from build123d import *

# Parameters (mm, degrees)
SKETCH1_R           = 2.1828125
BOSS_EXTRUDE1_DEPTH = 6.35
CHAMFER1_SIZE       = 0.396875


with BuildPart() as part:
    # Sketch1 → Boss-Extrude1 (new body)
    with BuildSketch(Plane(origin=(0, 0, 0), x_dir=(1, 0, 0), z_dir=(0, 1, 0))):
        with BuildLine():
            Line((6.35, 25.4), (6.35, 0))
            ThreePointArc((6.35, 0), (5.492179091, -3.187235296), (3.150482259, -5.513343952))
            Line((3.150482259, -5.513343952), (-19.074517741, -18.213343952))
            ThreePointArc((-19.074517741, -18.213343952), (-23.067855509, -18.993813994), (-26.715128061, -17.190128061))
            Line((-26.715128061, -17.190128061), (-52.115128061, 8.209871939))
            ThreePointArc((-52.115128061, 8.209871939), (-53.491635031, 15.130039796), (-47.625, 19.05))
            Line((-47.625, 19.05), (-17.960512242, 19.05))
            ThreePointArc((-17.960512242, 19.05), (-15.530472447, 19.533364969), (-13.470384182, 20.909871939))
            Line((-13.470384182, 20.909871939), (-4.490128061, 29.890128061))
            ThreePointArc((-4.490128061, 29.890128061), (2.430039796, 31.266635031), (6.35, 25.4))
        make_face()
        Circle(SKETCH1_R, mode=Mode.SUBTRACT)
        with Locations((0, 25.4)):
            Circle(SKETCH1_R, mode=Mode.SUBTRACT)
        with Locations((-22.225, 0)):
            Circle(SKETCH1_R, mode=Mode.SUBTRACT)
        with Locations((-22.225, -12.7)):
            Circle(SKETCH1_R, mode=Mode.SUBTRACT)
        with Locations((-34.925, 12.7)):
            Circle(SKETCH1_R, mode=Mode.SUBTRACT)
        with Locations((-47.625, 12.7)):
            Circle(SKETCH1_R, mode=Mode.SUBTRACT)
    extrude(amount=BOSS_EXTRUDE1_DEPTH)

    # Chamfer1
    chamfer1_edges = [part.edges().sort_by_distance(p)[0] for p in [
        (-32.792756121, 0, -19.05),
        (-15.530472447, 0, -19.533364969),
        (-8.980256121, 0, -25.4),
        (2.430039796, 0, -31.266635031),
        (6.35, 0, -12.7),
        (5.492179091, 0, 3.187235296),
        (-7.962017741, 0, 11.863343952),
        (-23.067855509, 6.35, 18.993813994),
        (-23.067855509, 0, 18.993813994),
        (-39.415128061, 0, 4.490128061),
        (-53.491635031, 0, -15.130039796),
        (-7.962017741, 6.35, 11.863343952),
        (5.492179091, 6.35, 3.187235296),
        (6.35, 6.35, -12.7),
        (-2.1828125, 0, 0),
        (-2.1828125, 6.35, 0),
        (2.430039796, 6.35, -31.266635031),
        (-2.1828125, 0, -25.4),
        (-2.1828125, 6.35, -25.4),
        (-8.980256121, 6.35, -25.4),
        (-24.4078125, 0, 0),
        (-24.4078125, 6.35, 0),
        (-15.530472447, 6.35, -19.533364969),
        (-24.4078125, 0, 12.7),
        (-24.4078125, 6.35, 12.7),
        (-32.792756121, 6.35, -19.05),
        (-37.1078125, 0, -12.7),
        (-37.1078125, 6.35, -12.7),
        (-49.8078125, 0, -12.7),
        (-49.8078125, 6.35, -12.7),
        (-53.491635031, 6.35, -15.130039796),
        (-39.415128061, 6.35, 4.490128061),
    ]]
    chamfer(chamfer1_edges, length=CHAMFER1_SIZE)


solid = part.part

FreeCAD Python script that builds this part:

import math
import FreeCAD as App
import Part
import Sketcher

V = App.Vector
Q = App.Units.Quantity


def edges_at(feature, points):
    """Names of the edges that pass closest to the given points."""
    edges = feature.Shape.Edges
    near = lambda p: min(range(len(edges)), key=lambda i: edges[i].distToShape(Part.Vertex(*p))[0])
    return sorted({f"Edge{near(p) + 1}" for p in points})

doc = App.newDocument("Part")
body = doc.addObject("PartDesign::Body", "Body")

sketch1 = doc.addObject("Sketcher::SketchObject", "Sketch")
body.addObject(sketch1)
sketch1.AttachmentSupport = (doc.XZ_Plane, [""])
sketch1.MapMode = "FlatFace"
sketch1.addGeometry([
    Part.LineSegment(V(6.3, 0, 0), V(6.3, -25.4, 0)),
    Part.ArcOfCircle(Part.Circle(V(0, -25.4, 0), V(0, 0, 1), 6.4), math.radians(-135), math.radians(0)),
    Part.LineSegment(V(-4.5, -29.9, 0), V(-13.5, -20.9, 0)),
    Part.ArcOfCircle(Part.Circle(V(-18, -25.4, 0), V(0, 0, 1), 6.4), math.radians(45), math.radians(90)),
    Part.LineSegment(V(-18, -19.1, 0), V(-47.6, -19.1, 0)),
    Part.ArcOfCircle(Part.Circle(V(-47.6, -12.7, 0), V(0, 0, 1), 6.4), math.radians(135), math.radians(270)),
    Part.LineSegment(V(-52.1, -8.2, 0), V(-26.7, 17.2, 0)),
    Part.ArcOfCircle(Part.Circle(V(-22.2, 12.7, 0), V(0, 0, 1), 6.4), math.radians(60), math.radians(135)),
    Part.LineSegment(V(-19.1, 18.2, 0), V(3.2, 5.5, 0)),
    Part.ArcOfCircle(Part.Circle(V(0, 0, 0), V(0, 0, 1), 6.3), math.radians(0), math.radians(60)),
    Part.Circle(V(-22.2, 12.7, 0), V(0, 0, 1), 2.2),
    Part.Circle(V(0, 0, 0), V(0, 0, 1), 2.2),
    Part.Circle(V(-22.2, 0, 0), V(0, 0, 1), 2.2),
    Part.Circle(V(0, -25.4, 0), V(0, 0, 1), 2.2),
    Part.Circle(V(-34.9, -12.7, 0), V(0, 0, 1), 2.2),
    Part.Circle(V(-47.6, -12.7, 0), V(0, 0, 1), 2.2),
], False)
sketch1.addConstraint([
    Sketcher.Constraint("Tangent", 0, 2, 1, 2),
    Sketcher.Constraint("Tangent", 1, 1, 2, 1),
    Sketcher.Constraint("Tangent", 2, 2, 3, 1),
    Sketcher.Constraint("Tangent", 3, 2, 4, 1),
    Sketcher.Constraint("Tangent", 4, 2, 5, 2),
    Sketcher.Constraint("Tangent", 5, 1, 6, 1),
    Sketcher.Constraint("Tangent", 6, 2, 7, 2),
    Sketcher.Constraint("Tangent", 7, 1, 8, 1),
    Sketcher.Constraint("Tangent", 8, 2, 9, 2),
    Sketcher.Constraint("Tangent", 9, 1, 0, 1),
    Sketcher.Constraint("Vertical", 0),
    Sketcher.Constraint("Horizontal", 4),
    Sketcher.Constraint("Coincident", 9, 3, -1, 1),
    Sketcher.Constraint("Coincident", 11, 3, -1, 1),
    Sketcher.Constraint("Coincident", 10, 3, 7, 3),
    Sketcher.Constraint("Coincident", 13, 3, 1, 3),
    Sketcher.Constraint("Coincident", 15, 3, 5, 3),
    Sketcher.Constraint("Equal", 1, 3),
    Sketcher.Constraint("Equal", 3, 5),
    Sketcher.Constraint("Equal", 5, 7),
    Sketcher.Constraint("Equal", 7, 9),
    Sketcher.Constraint("Equal", 10, 11),
    Sketcher.Constraint("Equal", 11, 12),
    Sketcher.Constraint("Equal", 12, 13),
    Sketcher.Constraint("Equal", 13, 14),
    Sketcher.Constraint("Equal", 14, 15),
    Sketcher.Constraint("PointOnObject", 12, 3, -1),
    Sketcher.Constraint("Perpendicular", 2, 6),
    Sketcher.Constraint("Horizontal", 1, 3, 3, 3),
    Sketcher.Constraint("Horizontal", 5, 3, 14, 3),
    Sketcher.Constraint("Vertical", 10, 3, 12, 3),
    Sketcher.Constraint("DistanceY", 0, 2, 0, 1, Q("1 in")),
    Sketcher.Constraint("Radius", 1, Q("0.25 in")),
    Sketcher.Constraint("Diameter", 10, Q("0.171875 in")),
    Sketcher.Constraint("Angle", 2, Q("135 deg")),
    Sketcher.Constraint("DistanceX", 5, 3, 7, 3, Q("1 in")),
    Sketcher.Constraint("DistanceX", 5, 3, 14, 3, Q("0.5 in")),
    Sketcher.Constraint("DistanceX", 5, 3, -1, 1, Q("1.875 in")),
])
pad1 = doc.addObject("PartDesign::Pad", "Pad")
body.addObject(pad1)
pad1.Profile = sketch1
pad1.Length = Q("0.25 in")
pad1.Reversed = True
doc.recompute()

chamfer = doc.addObject("PartDesign::Chamfer", "Chamfer")
body.addObject(chamfer)
chamfer.Base = (pad1, edges_at(pad1, [
    (-32.793, 0, -19.05),
    (-15.53, 0, -19.533),
    (-8.98, 0, -25.4),
    (2.43, 0, -31.267),
    (6.35, 0, -12.7),
    (5.492, 0, 3.187),
    (-7.962, 0, 11.863),
    (-23.068, 6.35, 18.994),
    (-23.068, 0, 18.994),
    (-39.415, 0, 4.49),
    (-53.492, 0, -15.13),
    (-7.962, 6.35, 11.863),
    (5.492, 6.35, 3.187),
    (6.35, 6.35, -12.7),
    (-2.183, 0, 0),
    (-2.183, 6.35, 0),
    (2.43, 6.35, -31.267),
    (-2.183, 0, -25.4),
    (-2.183, 6.35, -25.4),
    (-8.98, 6.35, -25.4),
    (-24.408, 0, 0),
    (-24.408, 6.35, 0),
    (-15.53, 6.35, -19.533),
    (-24.408, 0, 12.7),
    (-24.408, 6.35, 12.7),
    (-32.793, 6.35, -19.05),
    (-37.108, 0, -12.7),
    (-37.108, 6.35, -12.7),
    (-49.808, 0, -12.7),
    (-49.808, 6.35, -12.7),
    (-53.492, 6.35, -15.13),
    (-39.415, 6.35, 4.49),
]))
chamfer.Size = Q("0.015625 in")

doc.recompute()
